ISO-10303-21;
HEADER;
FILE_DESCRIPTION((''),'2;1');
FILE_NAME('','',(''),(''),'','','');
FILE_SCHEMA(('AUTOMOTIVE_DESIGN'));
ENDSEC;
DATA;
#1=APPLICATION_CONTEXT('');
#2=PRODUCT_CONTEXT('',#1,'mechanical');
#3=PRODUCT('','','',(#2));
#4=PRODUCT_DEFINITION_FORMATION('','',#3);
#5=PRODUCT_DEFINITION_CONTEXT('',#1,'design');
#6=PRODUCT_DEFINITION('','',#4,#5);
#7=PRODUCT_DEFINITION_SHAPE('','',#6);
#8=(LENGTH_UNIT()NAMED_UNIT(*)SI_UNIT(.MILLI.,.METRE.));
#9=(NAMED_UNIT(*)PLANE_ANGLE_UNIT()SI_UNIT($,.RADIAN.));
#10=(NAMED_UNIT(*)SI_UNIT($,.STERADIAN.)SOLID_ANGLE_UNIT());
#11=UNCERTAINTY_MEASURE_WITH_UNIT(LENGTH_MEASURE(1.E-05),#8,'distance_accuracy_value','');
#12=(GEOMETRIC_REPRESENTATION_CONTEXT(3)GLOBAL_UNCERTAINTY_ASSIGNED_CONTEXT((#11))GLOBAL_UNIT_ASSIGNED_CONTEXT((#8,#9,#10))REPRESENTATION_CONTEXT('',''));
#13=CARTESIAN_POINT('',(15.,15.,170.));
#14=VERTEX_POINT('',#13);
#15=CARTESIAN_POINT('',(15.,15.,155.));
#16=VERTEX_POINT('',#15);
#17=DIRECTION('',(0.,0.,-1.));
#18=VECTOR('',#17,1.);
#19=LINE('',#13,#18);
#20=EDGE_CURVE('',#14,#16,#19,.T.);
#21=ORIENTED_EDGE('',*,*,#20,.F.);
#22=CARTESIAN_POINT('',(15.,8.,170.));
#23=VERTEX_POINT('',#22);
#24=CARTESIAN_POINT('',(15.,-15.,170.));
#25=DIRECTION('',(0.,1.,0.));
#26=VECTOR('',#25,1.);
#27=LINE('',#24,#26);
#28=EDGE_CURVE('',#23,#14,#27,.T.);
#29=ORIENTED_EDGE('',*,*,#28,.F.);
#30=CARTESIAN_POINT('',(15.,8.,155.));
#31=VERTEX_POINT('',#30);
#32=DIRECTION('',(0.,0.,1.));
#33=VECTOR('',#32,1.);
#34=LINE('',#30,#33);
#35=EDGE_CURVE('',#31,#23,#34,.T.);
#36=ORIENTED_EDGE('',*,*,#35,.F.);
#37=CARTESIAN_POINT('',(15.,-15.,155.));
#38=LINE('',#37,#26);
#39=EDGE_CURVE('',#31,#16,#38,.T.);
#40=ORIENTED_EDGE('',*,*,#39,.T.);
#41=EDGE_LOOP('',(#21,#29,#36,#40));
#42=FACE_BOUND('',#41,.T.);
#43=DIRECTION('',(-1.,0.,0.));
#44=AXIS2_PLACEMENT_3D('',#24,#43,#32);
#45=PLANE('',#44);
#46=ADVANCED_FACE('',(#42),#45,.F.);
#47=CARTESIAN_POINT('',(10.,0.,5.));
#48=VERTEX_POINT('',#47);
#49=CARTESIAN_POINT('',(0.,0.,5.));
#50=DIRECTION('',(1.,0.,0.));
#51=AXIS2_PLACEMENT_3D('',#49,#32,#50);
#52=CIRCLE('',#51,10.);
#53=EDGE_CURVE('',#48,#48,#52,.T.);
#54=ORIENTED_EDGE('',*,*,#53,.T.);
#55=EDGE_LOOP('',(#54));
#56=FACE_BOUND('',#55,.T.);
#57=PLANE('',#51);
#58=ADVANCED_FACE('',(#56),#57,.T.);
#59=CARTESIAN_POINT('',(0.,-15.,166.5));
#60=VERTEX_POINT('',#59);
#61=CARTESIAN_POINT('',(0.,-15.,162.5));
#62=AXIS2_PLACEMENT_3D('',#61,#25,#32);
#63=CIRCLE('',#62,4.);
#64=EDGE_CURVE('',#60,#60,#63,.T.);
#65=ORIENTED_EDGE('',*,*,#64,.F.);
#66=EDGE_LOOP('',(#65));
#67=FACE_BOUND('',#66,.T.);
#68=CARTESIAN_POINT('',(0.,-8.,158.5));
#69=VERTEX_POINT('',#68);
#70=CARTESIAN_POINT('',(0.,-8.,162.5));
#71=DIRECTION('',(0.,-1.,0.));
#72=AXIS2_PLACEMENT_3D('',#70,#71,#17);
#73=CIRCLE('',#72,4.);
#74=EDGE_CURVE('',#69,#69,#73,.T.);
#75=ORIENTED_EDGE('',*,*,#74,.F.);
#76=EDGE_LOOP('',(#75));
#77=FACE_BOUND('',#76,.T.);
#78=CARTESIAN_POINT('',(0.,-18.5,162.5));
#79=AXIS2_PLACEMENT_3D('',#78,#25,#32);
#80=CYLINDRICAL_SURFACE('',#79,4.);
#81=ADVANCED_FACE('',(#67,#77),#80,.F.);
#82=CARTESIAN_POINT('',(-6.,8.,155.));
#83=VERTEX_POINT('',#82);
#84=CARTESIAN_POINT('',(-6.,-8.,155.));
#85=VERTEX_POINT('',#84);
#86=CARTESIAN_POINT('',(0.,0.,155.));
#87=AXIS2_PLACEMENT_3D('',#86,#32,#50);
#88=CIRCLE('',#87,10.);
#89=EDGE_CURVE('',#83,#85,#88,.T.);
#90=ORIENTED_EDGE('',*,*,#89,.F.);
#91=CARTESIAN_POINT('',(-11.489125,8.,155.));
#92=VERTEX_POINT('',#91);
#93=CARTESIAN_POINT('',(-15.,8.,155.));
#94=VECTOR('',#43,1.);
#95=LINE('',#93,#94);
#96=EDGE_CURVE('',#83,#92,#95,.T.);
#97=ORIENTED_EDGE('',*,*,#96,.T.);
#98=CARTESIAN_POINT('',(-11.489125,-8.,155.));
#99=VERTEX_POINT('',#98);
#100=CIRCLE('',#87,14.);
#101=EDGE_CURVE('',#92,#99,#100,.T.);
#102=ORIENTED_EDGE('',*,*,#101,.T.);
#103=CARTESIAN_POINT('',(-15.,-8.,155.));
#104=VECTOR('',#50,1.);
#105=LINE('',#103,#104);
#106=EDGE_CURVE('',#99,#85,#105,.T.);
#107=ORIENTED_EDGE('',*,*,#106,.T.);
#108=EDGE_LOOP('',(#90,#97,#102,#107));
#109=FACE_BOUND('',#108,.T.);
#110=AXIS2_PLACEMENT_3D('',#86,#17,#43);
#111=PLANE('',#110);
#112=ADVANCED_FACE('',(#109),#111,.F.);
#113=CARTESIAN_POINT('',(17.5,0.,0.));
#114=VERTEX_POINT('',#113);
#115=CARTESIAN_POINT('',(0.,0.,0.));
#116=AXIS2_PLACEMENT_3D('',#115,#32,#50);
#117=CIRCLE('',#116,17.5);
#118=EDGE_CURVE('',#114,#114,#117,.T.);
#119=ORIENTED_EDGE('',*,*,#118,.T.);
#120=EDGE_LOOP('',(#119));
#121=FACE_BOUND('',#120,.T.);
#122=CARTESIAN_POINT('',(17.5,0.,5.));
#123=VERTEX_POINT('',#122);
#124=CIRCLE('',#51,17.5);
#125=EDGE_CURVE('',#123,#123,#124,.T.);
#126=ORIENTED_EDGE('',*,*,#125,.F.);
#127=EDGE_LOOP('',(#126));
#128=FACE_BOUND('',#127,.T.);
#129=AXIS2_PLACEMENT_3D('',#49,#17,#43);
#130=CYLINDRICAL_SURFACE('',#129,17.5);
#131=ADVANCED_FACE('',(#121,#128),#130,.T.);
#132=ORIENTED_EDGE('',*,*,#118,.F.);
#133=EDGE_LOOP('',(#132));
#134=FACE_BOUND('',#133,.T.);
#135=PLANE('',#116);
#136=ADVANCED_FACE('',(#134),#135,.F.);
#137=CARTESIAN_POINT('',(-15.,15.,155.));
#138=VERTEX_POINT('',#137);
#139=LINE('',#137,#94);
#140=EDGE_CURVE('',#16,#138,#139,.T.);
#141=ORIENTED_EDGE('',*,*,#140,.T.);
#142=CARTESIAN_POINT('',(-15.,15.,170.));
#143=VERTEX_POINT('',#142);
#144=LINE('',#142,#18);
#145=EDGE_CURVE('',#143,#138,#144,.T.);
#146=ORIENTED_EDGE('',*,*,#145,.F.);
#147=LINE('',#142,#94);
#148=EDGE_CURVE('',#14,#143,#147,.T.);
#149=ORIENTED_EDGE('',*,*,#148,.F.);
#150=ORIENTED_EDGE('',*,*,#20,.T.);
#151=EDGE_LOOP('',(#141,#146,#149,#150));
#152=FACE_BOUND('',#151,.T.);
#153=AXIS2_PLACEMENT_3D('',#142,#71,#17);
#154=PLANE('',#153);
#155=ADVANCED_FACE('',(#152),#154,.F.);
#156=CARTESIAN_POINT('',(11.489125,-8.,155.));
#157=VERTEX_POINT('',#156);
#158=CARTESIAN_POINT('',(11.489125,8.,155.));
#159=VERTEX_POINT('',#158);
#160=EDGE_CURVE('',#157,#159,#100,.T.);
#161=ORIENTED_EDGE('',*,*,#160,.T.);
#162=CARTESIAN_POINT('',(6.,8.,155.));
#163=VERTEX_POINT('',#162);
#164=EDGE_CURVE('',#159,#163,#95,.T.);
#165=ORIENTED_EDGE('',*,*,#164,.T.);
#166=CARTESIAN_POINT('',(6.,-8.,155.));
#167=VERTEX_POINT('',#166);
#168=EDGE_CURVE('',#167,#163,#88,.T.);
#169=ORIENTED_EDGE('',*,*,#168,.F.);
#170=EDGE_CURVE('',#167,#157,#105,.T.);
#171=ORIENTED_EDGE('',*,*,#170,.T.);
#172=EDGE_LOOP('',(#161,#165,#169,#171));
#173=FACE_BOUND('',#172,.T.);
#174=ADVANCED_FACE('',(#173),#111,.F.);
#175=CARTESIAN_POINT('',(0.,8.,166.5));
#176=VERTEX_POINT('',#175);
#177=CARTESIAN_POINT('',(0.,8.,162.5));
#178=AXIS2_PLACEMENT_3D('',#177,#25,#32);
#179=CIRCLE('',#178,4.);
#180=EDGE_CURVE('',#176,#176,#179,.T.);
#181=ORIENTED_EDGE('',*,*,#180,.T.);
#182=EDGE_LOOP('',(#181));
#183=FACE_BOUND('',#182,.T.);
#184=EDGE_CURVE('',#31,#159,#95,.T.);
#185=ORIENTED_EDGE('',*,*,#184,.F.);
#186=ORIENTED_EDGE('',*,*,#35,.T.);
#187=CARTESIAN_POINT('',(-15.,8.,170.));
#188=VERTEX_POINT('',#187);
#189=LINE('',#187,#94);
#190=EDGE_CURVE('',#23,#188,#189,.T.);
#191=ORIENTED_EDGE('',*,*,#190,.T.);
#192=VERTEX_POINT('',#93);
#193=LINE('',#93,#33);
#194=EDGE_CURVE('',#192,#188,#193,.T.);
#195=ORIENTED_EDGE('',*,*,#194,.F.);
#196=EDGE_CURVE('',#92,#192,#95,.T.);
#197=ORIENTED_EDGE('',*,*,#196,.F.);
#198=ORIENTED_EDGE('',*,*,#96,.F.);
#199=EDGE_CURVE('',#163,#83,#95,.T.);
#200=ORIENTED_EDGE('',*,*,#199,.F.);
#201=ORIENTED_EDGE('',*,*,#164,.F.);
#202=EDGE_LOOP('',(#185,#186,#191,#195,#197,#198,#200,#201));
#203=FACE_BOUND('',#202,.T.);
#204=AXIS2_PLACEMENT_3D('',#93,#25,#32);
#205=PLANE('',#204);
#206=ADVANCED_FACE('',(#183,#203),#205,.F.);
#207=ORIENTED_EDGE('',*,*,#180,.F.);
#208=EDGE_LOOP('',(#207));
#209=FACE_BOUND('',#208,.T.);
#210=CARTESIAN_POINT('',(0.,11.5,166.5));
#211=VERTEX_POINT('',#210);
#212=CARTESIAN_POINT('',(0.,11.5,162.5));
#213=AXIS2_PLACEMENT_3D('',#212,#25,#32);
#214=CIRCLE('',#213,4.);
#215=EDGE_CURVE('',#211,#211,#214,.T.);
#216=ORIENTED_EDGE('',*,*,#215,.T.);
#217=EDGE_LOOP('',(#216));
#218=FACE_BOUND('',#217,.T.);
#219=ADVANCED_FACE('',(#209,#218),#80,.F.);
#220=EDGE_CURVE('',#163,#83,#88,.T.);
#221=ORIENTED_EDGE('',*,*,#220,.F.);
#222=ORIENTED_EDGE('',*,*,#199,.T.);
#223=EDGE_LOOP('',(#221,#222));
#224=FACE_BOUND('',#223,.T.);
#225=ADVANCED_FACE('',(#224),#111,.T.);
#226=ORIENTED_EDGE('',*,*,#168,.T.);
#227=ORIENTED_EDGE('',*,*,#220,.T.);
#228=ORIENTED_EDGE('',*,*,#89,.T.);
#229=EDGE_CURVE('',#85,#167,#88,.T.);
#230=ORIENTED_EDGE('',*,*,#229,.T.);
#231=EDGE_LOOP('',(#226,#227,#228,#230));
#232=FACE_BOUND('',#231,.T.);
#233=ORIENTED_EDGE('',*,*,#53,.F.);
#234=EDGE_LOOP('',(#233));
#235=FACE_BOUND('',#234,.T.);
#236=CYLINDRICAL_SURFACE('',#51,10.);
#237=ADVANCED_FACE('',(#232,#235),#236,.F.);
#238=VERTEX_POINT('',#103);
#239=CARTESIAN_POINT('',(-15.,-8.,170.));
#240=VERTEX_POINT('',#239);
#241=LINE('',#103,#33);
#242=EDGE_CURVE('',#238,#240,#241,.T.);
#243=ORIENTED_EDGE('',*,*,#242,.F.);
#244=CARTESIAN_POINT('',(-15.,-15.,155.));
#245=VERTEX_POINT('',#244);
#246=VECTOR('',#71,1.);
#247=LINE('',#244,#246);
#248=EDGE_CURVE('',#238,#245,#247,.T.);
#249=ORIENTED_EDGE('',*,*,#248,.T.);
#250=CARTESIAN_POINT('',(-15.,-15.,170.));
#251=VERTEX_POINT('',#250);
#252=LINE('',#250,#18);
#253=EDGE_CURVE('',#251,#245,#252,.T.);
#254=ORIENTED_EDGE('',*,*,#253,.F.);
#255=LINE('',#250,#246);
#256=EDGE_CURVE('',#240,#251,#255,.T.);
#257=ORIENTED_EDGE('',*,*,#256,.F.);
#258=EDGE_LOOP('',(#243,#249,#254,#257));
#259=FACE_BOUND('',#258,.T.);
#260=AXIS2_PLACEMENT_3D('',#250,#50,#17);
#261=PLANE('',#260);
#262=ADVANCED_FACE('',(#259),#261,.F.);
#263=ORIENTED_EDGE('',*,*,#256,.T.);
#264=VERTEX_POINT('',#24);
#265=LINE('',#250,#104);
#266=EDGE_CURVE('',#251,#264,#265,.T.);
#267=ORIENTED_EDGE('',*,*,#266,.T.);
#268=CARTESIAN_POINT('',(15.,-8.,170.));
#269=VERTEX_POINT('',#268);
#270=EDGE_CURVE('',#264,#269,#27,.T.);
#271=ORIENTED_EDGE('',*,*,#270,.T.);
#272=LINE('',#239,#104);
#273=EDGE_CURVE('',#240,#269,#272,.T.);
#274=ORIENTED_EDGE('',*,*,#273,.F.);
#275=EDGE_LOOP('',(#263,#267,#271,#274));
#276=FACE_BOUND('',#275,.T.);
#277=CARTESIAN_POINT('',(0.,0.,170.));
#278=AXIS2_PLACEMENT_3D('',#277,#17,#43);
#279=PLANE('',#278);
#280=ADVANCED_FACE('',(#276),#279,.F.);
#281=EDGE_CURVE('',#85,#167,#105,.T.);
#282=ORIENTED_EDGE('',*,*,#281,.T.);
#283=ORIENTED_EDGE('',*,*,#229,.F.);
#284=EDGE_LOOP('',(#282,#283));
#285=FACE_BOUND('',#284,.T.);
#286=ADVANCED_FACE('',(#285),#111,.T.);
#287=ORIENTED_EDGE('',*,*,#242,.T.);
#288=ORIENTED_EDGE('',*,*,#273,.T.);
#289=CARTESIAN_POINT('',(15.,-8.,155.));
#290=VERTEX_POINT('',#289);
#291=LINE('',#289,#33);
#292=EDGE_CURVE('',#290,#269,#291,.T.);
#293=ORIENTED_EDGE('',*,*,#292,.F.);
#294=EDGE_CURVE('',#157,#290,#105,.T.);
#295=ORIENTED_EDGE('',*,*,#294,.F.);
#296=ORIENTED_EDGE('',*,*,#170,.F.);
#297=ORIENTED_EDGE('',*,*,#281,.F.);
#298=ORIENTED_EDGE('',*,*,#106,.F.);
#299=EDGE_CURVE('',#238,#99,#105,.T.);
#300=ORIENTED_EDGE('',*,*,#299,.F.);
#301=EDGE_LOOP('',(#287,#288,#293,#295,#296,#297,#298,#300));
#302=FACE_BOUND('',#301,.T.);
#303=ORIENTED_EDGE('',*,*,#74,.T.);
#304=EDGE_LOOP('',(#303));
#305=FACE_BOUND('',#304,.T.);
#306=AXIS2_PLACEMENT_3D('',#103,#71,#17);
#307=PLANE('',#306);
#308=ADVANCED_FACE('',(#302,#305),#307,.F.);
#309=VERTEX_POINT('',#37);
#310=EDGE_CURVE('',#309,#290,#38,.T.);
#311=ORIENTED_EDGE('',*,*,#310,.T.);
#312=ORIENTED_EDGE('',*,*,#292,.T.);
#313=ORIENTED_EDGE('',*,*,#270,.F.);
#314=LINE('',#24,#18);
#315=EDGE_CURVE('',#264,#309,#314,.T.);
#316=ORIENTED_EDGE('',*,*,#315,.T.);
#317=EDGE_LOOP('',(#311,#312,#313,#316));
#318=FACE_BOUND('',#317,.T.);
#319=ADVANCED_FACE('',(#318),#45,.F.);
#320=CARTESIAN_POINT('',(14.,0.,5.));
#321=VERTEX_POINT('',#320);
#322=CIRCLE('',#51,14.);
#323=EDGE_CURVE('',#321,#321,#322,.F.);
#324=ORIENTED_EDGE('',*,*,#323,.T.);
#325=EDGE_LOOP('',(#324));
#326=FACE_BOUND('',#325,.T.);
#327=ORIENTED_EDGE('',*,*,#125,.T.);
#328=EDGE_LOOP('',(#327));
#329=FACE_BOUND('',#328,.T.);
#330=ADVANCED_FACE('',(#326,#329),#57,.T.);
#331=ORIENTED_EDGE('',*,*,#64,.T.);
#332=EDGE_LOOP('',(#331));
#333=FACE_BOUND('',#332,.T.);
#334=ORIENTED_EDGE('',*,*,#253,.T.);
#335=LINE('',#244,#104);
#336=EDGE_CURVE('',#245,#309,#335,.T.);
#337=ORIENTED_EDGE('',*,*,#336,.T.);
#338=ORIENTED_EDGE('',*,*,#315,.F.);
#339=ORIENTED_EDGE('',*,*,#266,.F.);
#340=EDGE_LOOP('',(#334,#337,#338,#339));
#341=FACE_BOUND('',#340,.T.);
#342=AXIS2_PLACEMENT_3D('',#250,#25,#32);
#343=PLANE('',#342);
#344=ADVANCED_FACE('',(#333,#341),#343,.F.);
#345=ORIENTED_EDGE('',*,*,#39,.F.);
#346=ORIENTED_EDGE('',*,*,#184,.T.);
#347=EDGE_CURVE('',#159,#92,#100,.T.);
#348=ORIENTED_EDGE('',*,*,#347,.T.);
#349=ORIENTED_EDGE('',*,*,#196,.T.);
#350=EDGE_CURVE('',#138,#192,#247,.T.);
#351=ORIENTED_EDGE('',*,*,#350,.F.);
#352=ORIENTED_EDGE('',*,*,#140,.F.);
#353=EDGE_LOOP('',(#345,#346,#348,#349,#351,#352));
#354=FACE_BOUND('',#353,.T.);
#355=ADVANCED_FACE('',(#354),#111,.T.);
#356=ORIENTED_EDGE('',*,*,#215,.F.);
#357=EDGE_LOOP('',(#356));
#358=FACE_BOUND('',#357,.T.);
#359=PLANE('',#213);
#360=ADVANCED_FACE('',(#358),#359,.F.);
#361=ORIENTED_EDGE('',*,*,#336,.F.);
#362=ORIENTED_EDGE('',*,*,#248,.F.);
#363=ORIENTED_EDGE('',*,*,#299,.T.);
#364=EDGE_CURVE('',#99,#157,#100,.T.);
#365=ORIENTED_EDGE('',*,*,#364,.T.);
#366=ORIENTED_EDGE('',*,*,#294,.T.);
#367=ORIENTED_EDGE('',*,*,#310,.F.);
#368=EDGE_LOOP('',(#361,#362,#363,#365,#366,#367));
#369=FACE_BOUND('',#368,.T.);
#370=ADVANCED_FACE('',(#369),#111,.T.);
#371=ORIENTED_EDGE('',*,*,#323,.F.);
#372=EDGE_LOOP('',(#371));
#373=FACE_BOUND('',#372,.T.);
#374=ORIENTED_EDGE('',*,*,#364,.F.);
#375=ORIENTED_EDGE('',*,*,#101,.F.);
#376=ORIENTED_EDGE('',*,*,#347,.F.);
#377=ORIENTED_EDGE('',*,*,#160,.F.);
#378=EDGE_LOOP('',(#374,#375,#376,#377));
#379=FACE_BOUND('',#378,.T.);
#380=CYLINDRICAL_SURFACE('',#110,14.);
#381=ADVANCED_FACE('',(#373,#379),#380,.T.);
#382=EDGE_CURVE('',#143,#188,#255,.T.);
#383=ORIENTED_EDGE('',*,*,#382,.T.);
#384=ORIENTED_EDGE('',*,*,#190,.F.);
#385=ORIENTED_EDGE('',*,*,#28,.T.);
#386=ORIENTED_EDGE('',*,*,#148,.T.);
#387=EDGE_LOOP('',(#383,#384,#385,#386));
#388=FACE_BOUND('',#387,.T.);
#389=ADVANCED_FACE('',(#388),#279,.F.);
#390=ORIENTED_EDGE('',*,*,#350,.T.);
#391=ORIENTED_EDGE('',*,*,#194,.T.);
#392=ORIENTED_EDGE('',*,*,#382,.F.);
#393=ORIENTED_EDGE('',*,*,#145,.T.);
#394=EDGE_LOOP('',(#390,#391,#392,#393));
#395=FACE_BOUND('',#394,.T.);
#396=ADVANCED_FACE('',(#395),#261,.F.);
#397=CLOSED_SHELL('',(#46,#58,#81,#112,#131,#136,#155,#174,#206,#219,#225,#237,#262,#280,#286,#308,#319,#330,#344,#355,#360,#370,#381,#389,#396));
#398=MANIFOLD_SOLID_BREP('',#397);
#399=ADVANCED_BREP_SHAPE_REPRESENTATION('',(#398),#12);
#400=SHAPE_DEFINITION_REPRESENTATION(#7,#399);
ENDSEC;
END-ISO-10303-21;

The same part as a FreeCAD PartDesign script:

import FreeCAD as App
import Part
import Sketcher

V = App.Vector
Q = App.Units.Quantity


def add_polygon(sketch, points):
    """Adds a closed chain of lines whose ends are joined by coincident constraints."""
    first, n = sketch.GeometryCount, len(points)
    for a, b in zip(points, points[1:] + points[:1]):
        sketch.addGeometry(Part.LineSegment(App.Vector(*a, 0), App.Vector(*b, 0)), False)
    for i in range(n):
        sketch.addConstraint(Sketcher.Constraint("Coincident", first + i, 2, first + (i + 1) % n, 1))

doc = App.newDocument("Part")
body = doc.addObject("PartDesign::Body", "Body")

# Sketch on XY plane
sketch1 = doc.addObject("Sketcher::SketchObject", "Sketch")
body.addObject(sketch1)
sketch1.AttachmentSupport = (doc.XY_Plane, [""])
sketch1.MapMode = "FlatFace"
sketch1.addGeometry(Part.Circle(V(0, 0, 0), V(0, 0, 1), 18), False)
sketch1.addConstraint(Sketcher.Constraint("Coincident", 0, 3, -1, 1))
sketch1.addConstraint(Sketcher.Constraint("Diameter", 0, Q("35 mm")))
pad1 = doc.addObject("PartDesign::Pad", "Pad")
body.addObject(pad1)
pad1.Profile = sketch1
pad1.Length = 5

# Sketch on XY plane
sketch2 = doc.addObject("Sketcher::SketchObject", "Sketch001")
body.addObject(sketch2)
sketch2.AttachmentSupport = (doc.XY_Plane, [""])
sketch2.MapMode = "FlatFace"
sketch2.addGeometry(Part.Circle(V(0, 0, 0), V(0, 0, 1), 14), False)
sketch2.addConstraint(Sketcher.Constraint("Coincident", 0, 3, -1, 1))
sketch2.addConstraint(Sketcher.Constraint("Diameter", 0, Q("28 mm")))
pad2 = doc.addObject("PartDesign::Pad", "Pad001")
body.addObject(pad2)
pad2.Profile = sketch2
pad2.Length = 155

# Sketch on XY plane
sketch3 = doc.addObject("Sketcher::SketchObject", "Sketch002")
body.addObject(sketch3)
sketch3.AttachmentSupport = (doc.XY_Plane, [""])
sketch3.MapMode = "FlatFace"
sketch3.AttachmentOffset = App.Placement(V(0, 0, 155), App.Rotation())
sketch3.addGeometry(Part.Circle(V(0, 0, 0), V(0, 0, 1), 10), False)
sketch3.addConstraint(Sketcher.Constraint("Coincident", 0, 3, -1, 1))
sketch3.addConstraint(Sketcher.Constraint("Diameter", 0, Q("20 mm")))
pocket1 = doc.addObject("PartDesign::Pocket", "Pocket")
body.addObject(pocket1)
pocket1.Profile = sketch3
pocket1.Length = 150

# Sketch on XY plane
sketch4 = doc.addObject("Sketcher::SketchObject", "Sketch003")
body.addObject(sketch4)
sketch4.AttachmentSupport = (doc.XY_Plane, [""])
sketch4.MapMode = "FlatFace"
sketch4.AttachmentOffset = App.Placement(V(0, 0, 155), App.Rotation())
add_polygon(sketch4, [(-15, 15), (-15, -15), (15, -15), (15, 15)])  # lines 0-3
sketch4.addConstraint(Sketcher.Constraint("Vertical", 0))
sketch4.addConstraint(Sketcher.Constraint("Horizontal", 1))
sketch4.addConstraint(Sketcher.Constraint("Vertical", 2))
sketch4.addConstraint(Sketcher.Constraint("Horizontal", 3))
sketch4.addConstraint(Sketcher.Constraint("Symmetric", 0, 2, 2, 2, -1, 1))
sketch4.addConstraint(Sketcher.Constraint("Equal", 3, 0))
sketch4.addConstraint(Sketcher.Constraint("DistanceX", 1, 1, 1, 2, Q("30 mm")))
pad3 = doc.addObject("PartDesign::Pad", "Pad002")
body.addObject(pad3)
pad3.Profile = sketch4
pad3.Length = 15

# Sketch on XY plane
sketch5 = doc.addObject("Sketcher::SketchObject", "Sketch004")
body.addObject(sketch5)
sketch5.AttachmentSupport = (doc.XY_Plane, [""])
sketch5.MapMode = "FlatFace"
sketch5.AttachmentOffset = App.Placement(V(0, 0, 170), App.Rotation())
add_polygon(sketch5, [(-15, 8), (-15, -8), (15, -8), (15, 8)])  # lines 0-3
sketch5.addConstraint(Sketcher.Constraint("Vertical", 0))
sketch5.addConstraint(Sketcher.Constraint("Horizontal", 1))
sketch5.addConstraint(Sketcher.Constraint("Vertical", 2))
sketch5.addConstraint(Sketcher.Constraint("Horizontal", 3))
sketch5.addConstraint(Sketcher.Constraint("Symmetric", 0, 2, 2, 2, -1, 1))
sketch5.addConstraint(Sketcher.Constraint("DistanceX", 1, 1, 1, 2, Q("30 mm")))
sketch5.addConstraint(Sketcher.Constraint("DistanceY", 0, 2, 0, 1, Q("16 mm")))
pocket2 = doc.addObject("PartDesign::Pocket", "Pocket001")
body.addObject(pocket2)
pocket2.Profile = sketch5
pocket2.Length = 15

# Sketch on XZ plane
sketch6 = doc.addObject("Sketcher::SketchObject", "Sketch005")
body.addObject(sketch6)
sketch6.AttachmentSupport = (doc.XZ_Plane, [""])
sketch6.MapMode = "FlatFace"
sketch6.AttachmentOffset = App.Placement(V(0, 0, -11.5), App.Rotation())
sketch6.addGeometry(Part.Circle(V(0, 162.5, 0), V(0, 0, 1), 4), False)
sketch6.addConstraint(Sketcher.Constraint("PointOnObject", 0, 3, -2))
sketch6.addConstraint(Sketcher.Constraint("Diameter", 0, Q("8 mm")))
sketch6.addConstraint(Sketcher.Constraint("DistanceY", -1, 1, 0, 3, Q("162.5 mm")))
pocket3 = doc.addObject("PartDesign::Pocket", "Pocket002")
body.addObject(pocket3)
pocket3.Profile = sketch6
pocket3.Length = 30
pocket3.Reversed = True

doc.recompute()
